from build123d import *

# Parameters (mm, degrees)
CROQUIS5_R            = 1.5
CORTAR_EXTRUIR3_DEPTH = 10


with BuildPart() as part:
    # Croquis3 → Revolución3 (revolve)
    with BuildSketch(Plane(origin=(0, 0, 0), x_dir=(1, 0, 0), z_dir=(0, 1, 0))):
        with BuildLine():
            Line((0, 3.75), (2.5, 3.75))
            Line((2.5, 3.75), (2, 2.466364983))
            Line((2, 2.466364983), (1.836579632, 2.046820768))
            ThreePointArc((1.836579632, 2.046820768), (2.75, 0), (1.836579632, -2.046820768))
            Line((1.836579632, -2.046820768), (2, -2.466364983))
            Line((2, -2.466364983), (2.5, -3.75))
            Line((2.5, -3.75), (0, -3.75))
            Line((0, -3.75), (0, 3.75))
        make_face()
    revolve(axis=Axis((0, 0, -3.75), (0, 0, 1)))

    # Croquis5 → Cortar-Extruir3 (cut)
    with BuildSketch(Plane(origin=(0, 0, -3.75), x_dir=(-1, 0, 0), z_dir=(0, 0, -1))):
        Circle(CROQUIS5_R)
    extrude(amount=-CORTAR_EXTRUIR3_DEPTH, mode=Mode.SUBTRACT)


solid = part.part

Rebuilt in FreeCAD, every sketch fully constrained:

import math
import FreeCAD as App
import Part
import Sketcher

doc = App.newDocument("Part")
body = doc.addObject("PartDesign::Body", "Body")

sketch1 = doc.addObject("Sketcher::SketchObject", "Sketch")
body.addObject(sketch1)
sketch1.AttachmentSupport = (doc.XZ_Plane, [""])
sketch1.MapMode = "FlatFace"
sketch1.addGeometry([
    Part.LineSegment(App.Vector(2.5, -3.75, 0), App.Vector(0, -3.75, 0)),
    Part.LineSegment(App.Vector(0, -3.75, 0), App.Vector(0, 3.75, 0)),
    Part.LineSegment(App.Vector(0, 3.75, 0), App.Vector(2.5, 3.75, 0)),
    Part.LineSegment(App.Vector(2.5, 3.75, 0), App.Vector(2, 2.466365, 0)),
    Part.LineSegment(App.Vector(2, 2.466365, 0), App.Vector(1.83658, 2.046821, 0)),
    Part.ArcOfCircle(Part.Circle(App.Vector(0, 0, 0), App.Vector(0, 0, 1), 2.75), math.radians(-48.098877), math.radians(48.098877)),
    Part.LineSegment(App.Vector(1.83658, -2.046821, 0), App.Vector(2, -2.466365, 0)),
    Part.LineSegment(App.Vector(2, -2.466365, 0), App.Vector(2.5, -3.75, 0)),
], False)
sketch1.addConstraint([
    Sketcher.Constraint("Coincident", 0, 2, 1, 1),
    Sketcher.Constraint("Coincident", 1, 2, 2, 1),
    Sketcher.Constraint("Coincident", 2, 2, 3, 1),
    Sketcher.Constraint("Coincident", 3, 2, 4, 1),
    Sketcher.Constraint("Coincident", 4, 2, 5, 2),
    Sketcher.Constraint("Coincident", 5, 1, 6, 1),
    Sketcher.Constraint("Coincident", 6, 2, 7, 1),
    Sketcher.Constraint("Coincident", 7, 2, 0, 1),
    Sketcher.Constraint("Horizontal", 0),
    Sketcher.Constraint("Vertical", 1),
    Sketcher.Constraint("Horizontal", 2),
    Sketcher.Constraint("Coincident", 5, 3, -1, 1),
    Sketcher.Constraint("Symmetric", 0, 2, 1, 2, -1, 1),
    Sketcher.Constraint("Symmetric", 3, 2, 6, 2, -1),
    Sketcher.Constraint("Parallel", 3, 4),
    Sketcher.Constraint("Parallel", 6, 7),
    Sketcher.Constraint("Vertical", 4, 2, 5, 1),
    Sketcher.Constraint("Radius", 5, 2.75),
    Sketcher.Constraint("DistanceX", 0, 2, 0, 1, 2.5),
    Sketcher.Constraint("DistanceY", 1, 1, 1, 2, 7.5),
    Sketcher.Constraint("DistanceX", -1, 1, 3, 2, 2.0),
    Sketcher.Constraint("Distance", 4, 0.450248),
])
revolution = doc.addObject("PartDesign::Revolution", "Revolution")
body.addObject(revolution)
revolution.Profile = sketch1
revolution.ReferenceAxis = (sketch1, ["V_Axis"])
revolution.Angle = 360

sketch2 = doc.addObject("Sketcher::SketchObject", "Sketch001")
body.addObject(sketch2)
sketch2.AttachmentSupport = (doc.XY_Plane, [""])
sketch2.MapMode = "FlatFace"
sketch2.AttachmentOffset = App.Placement(App.Vector(0, 0, -3.75), App.Rotation())
sketch2.addGeometry(Part.Circle(App.Vector(0, 0, 0), App.Vector(0, 0, 1), 1.5), False)
sketch2.addConstraint([
    Sketcher.Constraint("Coincident", 0, 3, -1, 1),
    Sketcher.Constraint("Diameter", 0, 3.0),
])
pocket1 = doc.addObject("PartDesign::Pocket", "Pocket")
body.addObject(pocket1)
pocket1.Profile = sketch2
pocket1.Length = 10
pocket1.Reversed = True

doc.recompute()
